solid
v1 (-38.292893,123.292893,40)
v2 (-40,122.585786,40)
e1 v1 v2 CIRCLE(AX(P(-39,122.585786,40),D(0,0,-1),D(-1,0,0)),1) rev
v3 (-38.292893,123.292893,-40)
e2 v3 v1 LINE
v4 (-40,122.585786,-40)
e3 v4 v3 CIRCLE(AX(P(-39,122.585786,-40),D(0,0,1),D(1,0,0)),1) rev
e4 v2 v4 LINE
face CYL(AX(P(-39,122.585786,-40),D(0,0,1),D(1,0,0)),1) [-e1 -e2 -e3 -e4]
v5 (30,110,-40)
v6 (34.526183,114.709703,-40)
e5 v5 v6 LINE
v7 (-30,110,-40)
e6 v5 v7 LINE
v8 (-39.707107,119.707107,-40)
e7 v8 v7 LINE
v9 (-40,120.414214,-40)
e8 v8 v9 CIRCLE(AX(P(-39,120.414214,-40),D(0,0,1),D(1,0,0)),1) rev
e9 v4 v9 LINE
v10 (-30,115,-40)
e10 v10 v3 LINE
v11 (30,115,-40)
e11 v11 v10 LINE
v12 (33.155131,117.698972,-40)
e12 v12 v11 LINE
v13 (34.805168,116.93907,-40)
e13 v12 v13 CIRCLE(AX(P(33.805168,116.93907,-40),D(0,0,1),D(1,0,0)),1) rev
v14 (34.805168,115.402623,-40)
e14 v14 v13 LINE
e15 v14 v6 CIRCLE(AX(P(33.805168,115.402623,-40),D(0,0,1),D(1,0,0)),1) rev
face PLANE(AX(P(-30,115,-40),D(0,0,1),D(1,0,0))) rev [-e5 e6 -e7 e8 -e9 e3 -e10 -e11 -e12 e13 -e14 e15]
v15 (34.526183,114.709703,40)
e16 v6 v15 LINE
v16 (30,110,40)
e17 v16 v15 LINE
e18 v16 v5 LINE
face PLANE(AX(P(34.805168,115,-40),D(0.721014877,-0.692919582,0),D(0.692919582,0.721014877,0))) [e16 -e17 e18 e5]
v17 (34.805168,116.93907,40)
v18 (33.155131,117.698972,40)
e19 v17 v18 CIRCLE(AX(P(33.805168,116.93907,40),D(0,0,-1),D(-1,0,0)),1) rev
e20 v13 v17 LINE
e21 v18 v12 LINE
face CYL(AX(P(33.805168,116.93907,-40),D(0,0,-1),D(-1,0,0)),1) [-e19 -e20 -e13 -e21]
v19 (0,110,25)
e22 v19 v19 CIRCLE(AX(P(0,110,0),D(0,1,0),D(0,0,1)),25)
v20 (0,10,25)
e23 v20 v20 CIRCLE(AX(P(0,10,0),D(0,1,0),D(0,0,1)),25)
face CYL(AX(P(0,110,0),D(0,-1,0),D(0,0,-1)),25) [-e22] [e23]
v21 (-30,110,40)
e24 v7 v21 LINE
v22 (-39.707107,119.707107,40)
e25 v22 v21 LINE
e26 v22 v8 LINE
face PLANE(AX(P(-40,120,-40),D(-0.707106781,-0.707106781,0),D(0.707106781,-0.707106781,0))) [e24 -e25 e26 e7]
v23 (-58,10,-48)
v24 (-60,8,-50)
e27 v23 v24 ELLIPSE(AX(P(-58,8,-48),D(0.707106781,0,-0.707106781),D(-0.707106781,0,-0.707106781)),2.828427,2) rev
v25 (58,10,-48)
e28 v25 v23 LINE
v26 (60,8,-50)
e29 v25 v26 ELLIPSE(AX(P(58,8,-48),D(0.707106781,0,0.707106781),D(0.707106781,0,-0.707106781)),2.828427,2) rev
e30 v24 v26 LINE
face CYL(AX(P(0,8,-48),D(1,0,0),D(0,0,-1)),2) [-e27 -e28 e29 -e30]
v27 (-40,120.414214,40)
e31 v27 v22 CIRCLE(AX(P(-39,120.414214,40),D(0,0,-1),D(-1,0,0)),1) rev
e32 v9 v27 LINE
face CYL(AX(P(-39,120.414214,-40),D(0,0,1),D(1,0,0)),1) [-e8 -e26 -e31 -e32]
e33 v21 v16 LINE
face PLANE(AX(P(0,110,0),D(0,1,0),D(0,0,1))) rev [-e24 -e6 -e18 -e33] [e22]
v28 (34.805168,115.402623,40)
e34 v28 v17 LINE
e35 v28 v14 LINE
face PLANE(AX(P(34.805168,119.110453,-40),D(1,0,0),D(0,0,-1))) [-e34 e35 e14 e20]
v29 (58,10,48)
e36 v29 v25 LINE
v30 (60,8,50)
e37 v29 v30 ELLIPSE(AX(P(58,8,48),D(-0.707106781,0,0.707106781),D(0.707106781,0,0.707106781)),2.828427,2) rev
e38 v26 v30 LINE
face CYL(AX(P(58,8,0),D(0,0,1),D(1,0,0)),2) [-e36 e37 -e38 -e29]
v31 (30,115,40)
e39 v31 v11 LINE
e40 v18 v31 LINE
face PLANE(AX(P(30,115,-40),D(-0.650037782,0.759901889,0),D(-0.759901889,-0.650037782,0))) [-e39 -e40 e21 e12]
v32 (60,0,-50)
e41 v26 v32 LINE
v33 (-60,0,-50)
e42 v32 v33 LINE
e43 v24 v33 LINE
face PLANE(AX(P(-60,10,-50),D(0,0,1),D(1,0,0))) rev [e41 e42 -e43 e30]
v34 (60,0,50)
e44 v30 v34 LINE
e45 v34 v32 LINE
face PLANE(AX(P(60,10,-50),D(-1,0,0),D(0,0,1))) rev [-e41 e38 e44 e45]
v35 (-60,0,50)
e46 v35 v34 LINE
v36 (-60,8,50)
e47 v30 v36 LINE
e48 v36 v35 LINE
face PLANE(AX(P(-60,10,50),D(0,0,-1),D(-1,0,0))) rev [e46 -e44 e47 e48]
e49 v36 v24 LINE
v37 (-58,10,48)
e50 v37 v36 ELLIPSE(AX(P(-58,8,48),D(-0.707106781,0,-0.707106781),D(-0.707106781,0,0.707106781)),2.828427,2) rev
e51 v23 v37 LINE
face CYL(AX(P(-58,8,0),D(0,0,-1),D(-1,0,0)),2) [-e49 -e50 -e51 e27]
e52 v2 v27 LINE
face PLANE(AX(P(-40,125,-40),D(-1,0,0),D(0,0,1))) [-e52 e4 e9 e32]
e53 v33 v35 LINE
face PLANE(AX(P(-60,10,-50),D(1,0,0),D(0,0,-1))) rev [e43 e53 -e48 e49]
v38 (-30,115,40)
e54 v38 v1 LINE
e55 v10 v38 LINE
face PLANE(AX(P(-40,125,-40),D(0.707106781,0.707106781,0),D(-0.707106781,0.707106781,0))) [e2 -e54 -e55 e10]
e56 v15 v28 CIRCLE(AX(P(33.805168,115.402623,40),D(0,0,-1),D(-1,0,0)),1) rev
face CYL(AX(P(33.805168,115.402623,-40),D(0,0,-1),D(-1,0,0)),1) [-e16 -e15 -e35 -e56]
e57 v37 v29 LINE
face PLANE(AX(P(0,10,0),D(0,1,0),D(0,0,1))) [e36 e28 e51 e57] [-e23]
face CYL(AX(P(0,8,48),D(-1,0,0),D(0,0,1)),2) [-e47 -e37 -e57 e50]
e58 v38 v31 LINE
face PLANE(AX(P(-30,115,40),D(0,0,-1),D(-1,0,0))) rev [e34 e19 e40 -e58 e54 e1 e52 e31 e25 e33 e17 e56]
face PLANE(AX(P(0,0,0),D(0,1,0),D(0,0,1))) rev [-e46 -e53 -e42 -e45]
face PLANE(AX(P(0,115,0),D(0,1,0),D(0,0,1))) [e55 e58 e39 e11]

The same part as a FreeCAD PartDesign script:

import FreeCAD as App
import Part
import Sketcher
from FreeCAD import Vector
Q = App.Units.Quantity


def edges_at(feature, points):
    """Names of the edges that pass closest to the given points."""
    edges = feature.Shape.Edges
    near = lambda p: min(range(len(edges)), key=lambda i: edges[i].distToShape(Part.Vertex(*p))[0])
    return sorted({f"Edge{near(p) + 1}" for p in points})

doc = App.newDocument("Part")
body = doc.addObject("PartDesign::Body", "Body")

sketch1 = body.newObject("Sketcher::SketchObject", "Sketch")
sketch1.AttachmentSupport = (doc.getObject("XZ_Plane"), [""])
sketch1.MapMode = "FlatFace"
sketch1.addGeometry(Part.LineSegment(Vector(-60, -50, 0), Vector(-60, 50, 0)), False)
sketch1.addGeometry(Part.LineSegment(Vector(-60, 50, 0), Vector(60, 50, 0)), False)
sketch1.addGeometry(Part.LineSegment(Vector(60, 50, 0), Vector(60, -50, 0)), False)
sketch1.addGeometry(Part.LineSegment(Vector(60, -50, 0), Vector(-60, -50, 0)), False)
sketch1.addConstraint(Sketcher.Constraint("Coincident", 0, 2, 1, 1))
sketch1.addConstraint(Sketcher.Constraint("Coincident", 1, 2, 2, 1))
sketch1.addConstraint(Sketcher.Constraint("Coincident", 2, 2, 3, 1))
sketch1.addConstraint(Sketcher.Constraint("Coincident", 3, 2, 0, 1))
sketch1.addConstraint(Sketcher.Constraint("Vertical", 0))
sketch1.addConstraint(Sketcher.Constraint("Horizontal", 1))
sketch1.addConstraint(Sketcher.Constraint("Vertical", 2))
sketch1.addConstraint(Sketcher.Constraint("Horizontal", 3))
sketch1.addConstraint(Sketcher.Constraint("Symmetric", 0, 2, 2, 2, -1, 1))
sketch1.addConstraint(Sketcher.Constraint("DistanceX", 1, 1, 1, 2, 120.0))
sketch1.addConstraint(Sketcher.Constraint("DistanceY", 0, 1, 0, 2, 100.0))
pad1 = body.newObject("PartDesign::Pad", "Pad")
pad1.Profile = sketch1
pad1.Length = 10
pad1.Reversed = True

sketch2 = body.newObject("Sketcher::SketchObject", "Sketch001")
sketch2.AttachmentSupport = (doc.getObject("XZ_Plane"), [""])
sketch2.MapMode = "FlatFace"
sketch2.AttachmentOffset = App.Placement(Vector(0, 0, -10), App.Rotation())
sketch2.addGeometry(Part.Circle(Vector(0, 0, 0), Vector(0, 0, 1), 25), False)
sketch2.addConstraint(Sketcher.Constraint("Coincident", 0, 3, -1, 1))
sketch2.addConstraint(Sketcher.Constraint("Diameter", 0, 50.0))
pad2 = body.newObject("PartDesign::Pad", "Pad001")
pad2.Profile = sketch2
pad2.Length = 100
pad2.Reversed = True

sketch3 = body.newObject("Sketcher::SketchObject", "Sketch002")
sketch3.AttachmentSupport = (doc.getObject("XZ_Plane"), [""])
sketch3.MapMode = "FlatFace"
sketch3.AttachmentOffset = App.Placement(Vector(0, 0, -110), App.Rotation())
sketch3.addGeometry(Part.LineSegment(Vector(-30, -40, 0), Vector(-30, 40, 0)), False)
sketch3.addGeometry(Part.LineSegment(Vector(-30, 40, 0), Vector(30, 40, 0)), False)
sketch3.addGeometry(Part.LineSegment(Vector(30, 40, 0), Vector(30, -40, 0)), False)
sketch3.addGeometry(Part.LineSegment(Vector(30, -40, 0), Vector(-30, -40, 0)), False)
sketch3.addConstraint(Sketcher.Constraint("Coincident", 0, 2, 1, 1))
sketch3.addConstraint(Sketcher.Constraint("Coincident", 1, 2, 2, 1))
sketch3.addConstraint(Sketcher.Constraint("Coincident", 2, 2, 3, 1))
sketch3.addConstraint(Sketcher.Constraint("Coincident", 3, 2, 0, 1))
sketch3.addConstraint(Sketcher.Constraint("Vertical", 0))
sketch3.addConstraint(Sketcher.Constraint("Horizontal", 1))
sketch3.addConstraint(Sketcher.Constraint("Vertical", 2))
sketch3.addConstraint(Sketcher.Constraint("Horizontal", 3))
sketch3.addConstraint(Sketcher.Constraint("Symmetric", 0, 2, 2, 2, -1, 1))
sketch3.addConstraint(Sketcher.Constraint("DistanceX", 1, 1, 1, 2, 60.0))
sketch3.addConstraint(Sketcher.Constraint("DistanceY", 0, 1, 0, 2, 80.0))
pad3 = body.newObject("PartDesign::Pad", "Pad002")
pad3.Profile = sketch3
pad3.Length = 5
pad3.Reversed = True

sketch4 = body.newObject("Sketcher::SketchObject", "Sketch003")
sketch4.AttachmentSupport = (doc.getObject("XY_Plane"), [""])
sketch4.MapMode = "FlatFace"
sketch4.AttachmentOffset = App.Placement(Vector(0, 0, 40), App.Rotation())
sketch4.addGeometry(Part.LineSegment(Vector(-30, 115, 0), Vector(-40, 125, 0)), False)
sketch4.addGeometry(Part.LineSegment(Vector(-40, 125, 0), Vector(-40, 120, 0)), False)
sketch4.addGeometry(Part.LineSegment(Vector(-40, 120, 0), Vector(-30, 110, 0)), False)
sketch4.addGeometry(Part.LineSegment(Vector(-30, 110, 0), Vector(-30, 115, 0)), False)
sketch4.addConstraint(Sketcher.Constraint("Coincident", 0, 2, 1, 1))
sketch4.addConstraint(Sketcher.Constraint("Coincident", 1, 2, 2, 1))
sketch4.addConstraint(Sketcher.Constraint("Coincident", 2, 2, 3, 1))
sketch4.addConstraint(Sketcher.Constraint("Coincident", 3, 2, 0, 1))
sketch4.addConstraint(Sketcher.Constraint("Vertical", 1))
sketch4.addConstraint(Sketcher.Constraint("Vertical", 3))
sketch4.addConstraint(Sketcher.Constraint("Parallel", 0, 2))
sketch4.addConstraint(Sketcher.Constraint("DistanceY", 1, 2, 1, 1, 5.0))
sketch4.addConstraint(Sketcher.Constraint("Angle", 0, Q("135 deg")))
sketch4.addConstraint(Sketcher.Constraint("DistanceX", 0, 2, -1, 1, 40.0))
sketch4.addConstraint(Sketcher.Constraint("DistanceY", -1, 1, 0, 2, 125.0))
sketch4.addConstraint(Sketcher.Constraint("DistanceX", 2, 2, -1, 1, 30.0))
pad4 = body.newObject("PartDesign::Pad", "Pad003")
pad4.Profile = sketch4
pad4.Length = 80
pad4.Reversed = True

sketch5 = body.newObject("Sketcher::SketchObject", "Sketch004")
sketch5.AttachmentSupport = (doc.getObject("XY_Plane"), [""])
sketch5.MapMode = "FlatFace"
sketch5.AttachmentOffset = App.Placement(Vector(0, 0, 40), App.Rotation())
sketch5.addGeometry(Part.LineSegment(Vector(34.805168, 119.110453, 0), Vector(30, 115, 0)), False)
sketch5.addGeometry(Part.LineSegment(Vector(30, 115, 0), Vector(30, 110, 0)), False)
sketch5.addGeometry(Part.LineSegment(Vector(30, 110, 0), Vector(34.805168, 115, 0)), False)
sketch5.addGeometry(Part.LineSegment(Vector(34.805168, 115, 0), Vector(34.805168, 119.110453, 0)), False)
sketch5.addConstraint(Sketcher.Constraint("Coincident", 0, 2, 1, 1))
sketch5.addConstraint(Sketcher.Constraint("Coincident", 1, 2, 2, 1))
sketch5.addConstraint(Sketcher.Constraint("Coincident", 2, 2, 3, 1))
sketch5.addConstraint(Sketcher.Constraint("Coincident", 3, 2, 0, 1))
sketch5.addConstraint(Sketcher.Constraint("Vertical", 1))
sketch5.addConstraint(Sketcher.Constraint("Vertical", 3))
sketch5.addConstraint(Sketcher.Constraint("Horizontal", 0, 2, 2, 2))
sketch5.addConstraint(Sketcher.Constraint("DistanceY", 1, 2, 1, 1, 5.0))
sketch5.addConstraint(Sketcher.Constraint("DistanceX", -1, 1, 0, 2, 30.0))
sketch5.addConstraint(Sketcher.Constraint("DistanceY", -1, 1, 0, 2, 115.0))
sketch5.addConstraint(Sketcher.Constraint("Distance", 2, 6.93467))
sketch5.addConstraint(Sketcher.Constraint("DistanceY", 3, 1, 3, 2, 4.110453))
pad5 = body.newObject("PartDesign::Pad", "Pad004")
pad5.Profile = sketch5
pad5.Length = 80
pad5.Reversed = True
doc.recompute()

fillet = body.newObject("PartDesign::Fillet", "Fillet")
fillet.Base = (pad5, edges_at(pad5, [(-40, 125, 0)]))
fillet.Radius = 1
doc.recompute()

fillet2 = body.newObject("PartDesign::Fillet", "Fillet001")
fillet2.Base = (fillet, edges_at(fillet, [(34.805, 119.11, 0)]))
fillet2.Radius = 1
doc.recompute()

fillet3 = body.newObject("PartDesign::Fillet", "Fillet002")
fillet3.Base = (fillet2, edges_at(fillet2, [(-40, 120, 0)]))
fillet3.Radius = 1
doc.recompute()

fillet4 = body.newObject("PartDesign::Fillet", "Fillet003")
fillet4.Base = (fillet3, edges_at(fillet3, [(34.805, 115, 0)]))
fillet4.Radius = 1
doc.recompute()

fillet5 = body.newObject("PartDesign::Fillet", "Fillet004")
fillet5.Base = (fillet4, edges_at(fillet4, [
    (-60, 10, 0),
    (0, 10, 50),
    (60, 10, 0),
    (0, 10, -50),
]))
fillet5.Radius = 2

doc.recompute()
